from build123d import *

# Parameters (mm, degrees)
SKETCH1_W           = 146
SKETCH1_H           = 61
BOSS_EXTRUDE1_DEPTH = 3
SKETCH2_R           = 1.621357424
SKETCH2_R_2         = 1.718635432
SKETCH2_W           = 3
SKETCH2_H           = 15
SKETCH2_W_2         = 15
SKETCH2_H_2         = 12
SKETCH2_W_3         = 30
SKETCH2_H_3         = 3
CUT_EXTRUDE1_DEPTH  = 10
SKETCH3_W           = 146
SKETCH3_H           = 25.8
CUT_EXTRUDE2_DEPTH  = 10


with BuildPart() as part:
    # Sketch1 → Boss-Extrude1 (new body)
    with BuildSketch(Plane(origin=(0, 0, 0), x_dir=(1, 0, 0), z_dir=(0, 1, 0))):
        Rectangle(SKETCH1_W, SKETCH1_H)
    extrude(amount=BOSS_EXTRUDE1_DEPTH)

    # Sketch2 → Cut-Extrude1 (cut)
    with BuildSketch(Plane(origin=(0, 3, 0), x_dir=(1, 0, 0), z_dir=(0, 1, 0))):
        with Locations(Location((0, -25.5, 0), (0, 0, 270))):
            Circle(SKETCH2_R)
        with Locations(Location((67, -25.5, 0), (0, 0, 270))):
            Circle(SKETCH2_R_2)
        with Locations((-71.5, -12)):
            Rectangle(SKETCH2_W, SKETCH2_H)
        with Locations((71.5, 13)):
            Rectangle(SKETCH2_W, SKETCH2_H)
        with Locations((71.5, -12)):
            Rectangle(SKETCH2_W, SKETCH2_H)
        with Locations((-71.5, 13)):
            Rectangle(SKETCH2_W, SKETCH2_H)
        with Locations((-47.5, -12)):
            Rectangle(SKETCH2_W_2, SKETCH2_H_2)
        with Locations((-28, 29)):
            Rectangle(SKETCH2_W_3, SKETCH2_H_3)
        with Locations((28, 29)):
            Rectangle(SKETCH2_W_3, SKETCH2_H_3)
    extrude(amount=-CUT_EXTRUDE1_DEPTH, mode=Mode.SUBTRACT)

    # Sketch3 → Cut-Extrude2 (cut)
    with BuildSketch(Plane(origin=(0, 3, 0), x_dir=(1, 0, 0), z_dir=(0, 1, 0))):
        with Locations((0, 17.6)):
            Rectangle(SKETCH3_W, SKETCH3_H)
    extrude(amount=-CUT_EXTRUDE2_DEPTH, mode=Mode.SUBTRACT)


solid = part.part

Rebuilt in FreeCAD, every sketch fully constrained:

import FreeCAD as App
import Part
import Sketcher

V = App.Vector
Q = App.Units.Quantity


def add_polygon(sketch, points):
    """Adds a closed chain of lines whose ends are joined by coincident constraints."""
    first, n = sketch.GeometryCount, len(points)
    for a, b in zip(points, points[1:] + points[:1]):
        sketch.addGeometry(Part.LineSegment(App.Vector(*a, 0), App.Vector(*b, 0)), False)
    for i in range(n):
        sketch.addConstraint(Sketcher.Constraint("Coincident", first + i, 2, first + (i + 1) % n, 1))

doc = App.newDocument("Part")
params = doc.addObject("Spreadsheet::Sheet", "Params")
for row, (alias, value) in enumerate([
    ("sketch1_width", "146 mm"),
    ("sketch1_height", "61 mm"),
    ("pad1_length", "3 mm"),
    ("sketch2_width", "3 mm"),
    ("sketch2_width2", "15 mm"),
    ("sketch2_width3", "30 mm"),
    ("sketch2_height", "12 mm"),
    ("pocket1_length", "10 mm"),
    ("sketch3_width", "146 mm"),
    ("sketch3_height", "25.8 mm"),
    ("pocket2_length", "10 mm"),
], start=1):
    params.set(f"A{row}", alias)
    params.set(f"B{row}", "=" + value)
    params.setAlias(f"B{row}", alias)

body = doc.addObject("PartDesign::Body", "Body")

sketch1 = body.newObject("Sketcher::SketchObject", "Sketch")
sketch1.AttachmentSupport = (doc.getObject("XZ_Plane"), [""])
sketch1.MapMode = "FlatFace"
add_polygon(sketch1, [(-73, -30), (-73, 30), (73, 30), (73, -30)])
sketch1.addConstraint(Sketcher.Constraint("Vertical", 0))
sketch1.addConstraint(Sketcher.Constraint("Horizontal", 1))
sketch1.addConstraint(Sketcher.Constraint("Vertical", 2))
sketch1.addConstraint(Sketcher.Constraint("Horizontal", 3))
sketch1.addConstraint(Sketcher.Constraint("Symmetric", 0, 2, 2, 2, -1, 1))
sketch1.addConstraint(Sketcher.Constraint("DistanceX", 1, 1, 1, 2, Q("146 mm")))
sketch1.addConstraint(Sketcher.Constraint("DistanceY", 0, 1, 0, 2, Q("61 mm")))
sketch1.setExpression("Constraints[9]", "Params.sketch1_width")
sketch1.setExpression("Constraints[10]", "Params.sketch1_height")
pad1 = body.newObject("PartDesign::Pad", "Pad")
pad1.Profile = sketch1
pad1.setExpression("Length", "Params.pad1_length")
pad1.Reversed = True

sketch2 = body.newObject("Sketcher::SketchObject", "Sketch001")
sketch2.AttachmentSupport = (doc.getObject("XZ_Plane"), [""])
sketch2.MapMode = "FlatFace"
sketch2.AttachmentOffset = App.Placement(V(0, 0, -3), App.Rotation())
sketch2.addGeometry(Part.Circle(V(0, 25.5, 0), V(0, 0, 1), 1.6), False)
sketch2.addGeometry(Part.Circle(V(67, 25.5, 0), V(0, 0, 1), 1.7), False)
add_polygon(sketch2, [(-73, 4.5), (-73, 19.5), (-70, 19.5), (-70, 4.5)])
add_polygon(sketch2, [(70, -20.5), (70, -5.5), (73, -5.5), (73, -20.5)])
add_polygon(sketch2, [(70, 4.5), (70, 19.5), (73, 19.5), (73, 4.5)])
add_polygon(sketch2, [(-73, -20.5), (-73, -5.5), (-70, -5.5), (-70, -20.5)])
add_polygon(sketch2, [(-55, 6), (-55, 18), (-40, 18), (-40, 6)])
add_polygon(sketch2, [(-43, -30.5), (-43, -27.5), (-13, -27.5), (-13, -30.5)])
add_polygon(sketch2, [(13, -30.5), (13, -27.5), (43, -27.5), (43, -30.5)])
sketch2.addConstraint(Sketcher.Constraint("Vertical", 2))
sketch2.addConstraint(Sketcher.Constraint("Horizontal", 3))
sketch2.addConstraint(Sketcher.Constraint("Vertical", 4))
sketch2.addConstraint(Sketcher.Constraint("Horizontal", 5))
sketch2.addConstraint(Sketcher.Constraint("Vertical", 6))
sketch2.addConstraint(Sketcher.Constraint("Horizontal", 7))
sketch2.addConstraint(Sketcher.Constraint("Vertical", 8))
sketch2.addConstraint(Sketcher.Constraint("Horizontal", 9))
sketch2.addConstraint(Sketcher.Constraint("Vertical", 10))
sketch2.addConstraint(Sketcher.Constraint("Horizontal", 11))
sketch2.addConstraint(Sketcher.Constraint("Vertical", 12))
sketch2.addConstraint(Sketcher.Constraint("Horizontal", 13))
sketch2.addConstraint(Sketcher.Constraint("Vertical", 14))
sketch2.addConstraint(Sketcher.Constraint("Horizontal", 15))
sketch2.addConstraint(Sketcher.Constraint("Vertical", 16))
sketch2.addConstraint(Sketcher.Constraint("Horizontal", 17))
sketch2.addConstraint(Sketcher.Constraint("Vertical", 18))
sketch2.addConstraint(Sketcher.Constraint("Horizontal", 19))
sketch2.addConstraint(Sketcher.Constraint("Vertical", 20))
sketch2.addConstraint(Sketcher.Constraint("Horizontal", 21))
sketch2.addConstraint(Sketcher.Constraint("Vertical", 22))
sketch2.addConstraint(Sketcher.Constraint("Horizontal", 23))
sketch2.addConstraint(Sketcher.Constraint("Vertical", 24))
sketch2.addConstraint(Sketcher.Constraint("Horizontal", 25))
sketch2.addConstraint(Sketcher.Constraint("Vertical", 26))
sketch2.addConstraint(Sketcher.Constraint("Horizontal", 27))
sketch2.addConstraint(Sketcher.Constraint("Vertical", 28))
sketch2.addConstraint(Sketcher.Constraint("Horizontal", 29))
sketch2.addConstraint(Sketcher.Constraint("Symmetric", 3, 2, 10, 2, -2))
sketch2.addConstraint(Sketcher.Constraint("Symmetric", 5, 2, 12, 2, -2))
sketch2.addConstraint(Sketcher.Constraint("Symmetric", 7, 2, 14, 2, -2))
sketch2.addConstraint(Sketcher.Constraint("Symmetric", 9, 2, 16, 2, -2))
sketch2.addConstraint(Sketcher.Constraint("Symmetric", 23, 2, 26, 2, -2))
sketch2.addConstraint(Sketcher.Constraint("Symmetric", 25, 2, 28, 2, -2))
sketch2.addConstraint(Sketcher.Constraint("PointOnObject", 0, 3, -2))
sketch2.addConstraint(Sketcher.Constraint("Horizontal", 0, 3, 1, 3))
sketch2.addConstraint(Sketcher.Constraint("Vertical", 9, 2, 10, 2))
sketch2.addConstraint(Sketcher.Constraint("Vertical", 8, 2, 11, 2))
sketch2.addConstraint(Sketcher.Constraint("Equal", 21, 2))
sketch2.addConstraint(Sketcher.Constraint("Equal", 4, 6))
sketch2.addConstraint(Sketcher.Constraint("Equal", 17, 22))
sketch2.addConstraint(Sketcher.Constraint("DistanceX", 3, 1, 3, 2, Q("3 mm")))
sketch2.addConstraint(Sketcher.Constraint("DistanceX", 19, 1, 19, 2, Q("15 mm")))
sketch2.addConstraint(Sketcher.Constraint("DistanceX", 23, 1, 23, 2, Q("30 mm")))
sketch2.addConstraint(Sketcher.Constraint("DistanceY", 18, 1, 18, 2, Q("12 mm")))
sketch2.addConstraint(Sketcher.Constraint("DistanceX", -1, 1, 1, 3, Q("67 mm")))
sketch2.addConstraint(Sketcher.Constraint("DistanceX", 2, 2, -1, 1, Q("73 mm")))
sketch2.addConstraint(Sketcher.Constraint("DistanceX", 18, 2, -1, 1, Q("55 mm")))
sketch2.addConstraint(Sketcher.Constraint("DistanceY", -1, 1, 18, 2, Q("18 mm")))
sketch2.addConstraint(Sketcher.Constraint("DistanceX", 22, 2, -1, 1, Q("43 mm")))
sketch2.addConstraint(Sketcher.Constraint("DistanceY", 2, 2, 0, 3, Q("6 mm")))
sketch2.addConstraint(Sketcher.Constraint("DistanceY", 6, 2, 1, 3, Q("31 mm")))
sketch2.addConstraint(Sketcher.Constraint("DistanceY", 22, 2, 16, 2, Q("7 mm")))
sketch2.addConstraint(Sketcher.Constraint("DistanceY", -1, 1, 0, 3, Q("25.5 mm")))
sketch2.addConstraint(Sketcher.Constraint("Diameter", 1, Q("3.437271 mm")))
sketch2.addConstraint(Sketcher.Constraint("Diameter", 0, Q("3.242715 mm")))
sketch2.setExpression("Constraints[69]", "Params.sketch2_width")
sketch2.setExpression("Constraints[70]", "Params.sketch2_width2")
sketch2.setExpression("Constraints[71]", "Params.sketch2_width3")
sketch2.setExpression("Constraints[72]", "Params.sketch2_height")
pocket1 = body.newObject("PartDesign::Pocket", "Pocket")
pocket1.Profile = sketch2
pocket1.setExpression("Length", "Params.pocket1_length")
pocket1.Reversed = True

sketch3 = body.newObject("Sketcher::SketchObject", "Sketch002")
sketch3.AttachmentSupport = (doc.getObject("XZ_Plane"), [""])
sketch3.MapMode = "FlatFace"
sketch3.AttachmentOffset = App.Placement(V(0, 0, -3), App.Rotation())
add_polygon(sketch3, [(-73, -30), (-73, -5), (73, -5), (73, -30)])
sketch3.addConstraint(Sketcher.Constraint("Vertical", 0))
sketch3.addConstraint(Sketcher.Constraint("Horizontal", 1))
sketch3.addConstraint(Sketcher.Constraint("Vertical", 2))
sketch3.addConstraint(Sketcher.Constraint("Horizontal", 3))
sketch3.addConstraint(Sketcher.Constraint("DistanceX", 1, 1, 1, 2, Q("146 mm")))
sketch3.addConstraint(Sketcher.Constraint("DistanceY", 0, 1, 0, 2, Q("25.8 mm")))
sketch3.addConstraint(Sketcher.Constraint("DistanceX", 0, 2, -1, 1, Q("73 mm")))
sketch3.addConstraint(Sketcher.Constraint("DistanceY", 0, 2, -1, 1, Q("4.7 mm")))
sketch3.setExpression("Constraints[8]", "Params.sketch3_width")
sketch3.setExpression("Constraints[9]", "Params.sketch3_height")
pocket2 = body.newObject("PartDesign::Pocket", "Pocket001")
pocket2.Profile = sketch3
pocket2.setExpression("Length", "Params.pocket2_length")
pocket2.Reversed = True

doc.recompute()
